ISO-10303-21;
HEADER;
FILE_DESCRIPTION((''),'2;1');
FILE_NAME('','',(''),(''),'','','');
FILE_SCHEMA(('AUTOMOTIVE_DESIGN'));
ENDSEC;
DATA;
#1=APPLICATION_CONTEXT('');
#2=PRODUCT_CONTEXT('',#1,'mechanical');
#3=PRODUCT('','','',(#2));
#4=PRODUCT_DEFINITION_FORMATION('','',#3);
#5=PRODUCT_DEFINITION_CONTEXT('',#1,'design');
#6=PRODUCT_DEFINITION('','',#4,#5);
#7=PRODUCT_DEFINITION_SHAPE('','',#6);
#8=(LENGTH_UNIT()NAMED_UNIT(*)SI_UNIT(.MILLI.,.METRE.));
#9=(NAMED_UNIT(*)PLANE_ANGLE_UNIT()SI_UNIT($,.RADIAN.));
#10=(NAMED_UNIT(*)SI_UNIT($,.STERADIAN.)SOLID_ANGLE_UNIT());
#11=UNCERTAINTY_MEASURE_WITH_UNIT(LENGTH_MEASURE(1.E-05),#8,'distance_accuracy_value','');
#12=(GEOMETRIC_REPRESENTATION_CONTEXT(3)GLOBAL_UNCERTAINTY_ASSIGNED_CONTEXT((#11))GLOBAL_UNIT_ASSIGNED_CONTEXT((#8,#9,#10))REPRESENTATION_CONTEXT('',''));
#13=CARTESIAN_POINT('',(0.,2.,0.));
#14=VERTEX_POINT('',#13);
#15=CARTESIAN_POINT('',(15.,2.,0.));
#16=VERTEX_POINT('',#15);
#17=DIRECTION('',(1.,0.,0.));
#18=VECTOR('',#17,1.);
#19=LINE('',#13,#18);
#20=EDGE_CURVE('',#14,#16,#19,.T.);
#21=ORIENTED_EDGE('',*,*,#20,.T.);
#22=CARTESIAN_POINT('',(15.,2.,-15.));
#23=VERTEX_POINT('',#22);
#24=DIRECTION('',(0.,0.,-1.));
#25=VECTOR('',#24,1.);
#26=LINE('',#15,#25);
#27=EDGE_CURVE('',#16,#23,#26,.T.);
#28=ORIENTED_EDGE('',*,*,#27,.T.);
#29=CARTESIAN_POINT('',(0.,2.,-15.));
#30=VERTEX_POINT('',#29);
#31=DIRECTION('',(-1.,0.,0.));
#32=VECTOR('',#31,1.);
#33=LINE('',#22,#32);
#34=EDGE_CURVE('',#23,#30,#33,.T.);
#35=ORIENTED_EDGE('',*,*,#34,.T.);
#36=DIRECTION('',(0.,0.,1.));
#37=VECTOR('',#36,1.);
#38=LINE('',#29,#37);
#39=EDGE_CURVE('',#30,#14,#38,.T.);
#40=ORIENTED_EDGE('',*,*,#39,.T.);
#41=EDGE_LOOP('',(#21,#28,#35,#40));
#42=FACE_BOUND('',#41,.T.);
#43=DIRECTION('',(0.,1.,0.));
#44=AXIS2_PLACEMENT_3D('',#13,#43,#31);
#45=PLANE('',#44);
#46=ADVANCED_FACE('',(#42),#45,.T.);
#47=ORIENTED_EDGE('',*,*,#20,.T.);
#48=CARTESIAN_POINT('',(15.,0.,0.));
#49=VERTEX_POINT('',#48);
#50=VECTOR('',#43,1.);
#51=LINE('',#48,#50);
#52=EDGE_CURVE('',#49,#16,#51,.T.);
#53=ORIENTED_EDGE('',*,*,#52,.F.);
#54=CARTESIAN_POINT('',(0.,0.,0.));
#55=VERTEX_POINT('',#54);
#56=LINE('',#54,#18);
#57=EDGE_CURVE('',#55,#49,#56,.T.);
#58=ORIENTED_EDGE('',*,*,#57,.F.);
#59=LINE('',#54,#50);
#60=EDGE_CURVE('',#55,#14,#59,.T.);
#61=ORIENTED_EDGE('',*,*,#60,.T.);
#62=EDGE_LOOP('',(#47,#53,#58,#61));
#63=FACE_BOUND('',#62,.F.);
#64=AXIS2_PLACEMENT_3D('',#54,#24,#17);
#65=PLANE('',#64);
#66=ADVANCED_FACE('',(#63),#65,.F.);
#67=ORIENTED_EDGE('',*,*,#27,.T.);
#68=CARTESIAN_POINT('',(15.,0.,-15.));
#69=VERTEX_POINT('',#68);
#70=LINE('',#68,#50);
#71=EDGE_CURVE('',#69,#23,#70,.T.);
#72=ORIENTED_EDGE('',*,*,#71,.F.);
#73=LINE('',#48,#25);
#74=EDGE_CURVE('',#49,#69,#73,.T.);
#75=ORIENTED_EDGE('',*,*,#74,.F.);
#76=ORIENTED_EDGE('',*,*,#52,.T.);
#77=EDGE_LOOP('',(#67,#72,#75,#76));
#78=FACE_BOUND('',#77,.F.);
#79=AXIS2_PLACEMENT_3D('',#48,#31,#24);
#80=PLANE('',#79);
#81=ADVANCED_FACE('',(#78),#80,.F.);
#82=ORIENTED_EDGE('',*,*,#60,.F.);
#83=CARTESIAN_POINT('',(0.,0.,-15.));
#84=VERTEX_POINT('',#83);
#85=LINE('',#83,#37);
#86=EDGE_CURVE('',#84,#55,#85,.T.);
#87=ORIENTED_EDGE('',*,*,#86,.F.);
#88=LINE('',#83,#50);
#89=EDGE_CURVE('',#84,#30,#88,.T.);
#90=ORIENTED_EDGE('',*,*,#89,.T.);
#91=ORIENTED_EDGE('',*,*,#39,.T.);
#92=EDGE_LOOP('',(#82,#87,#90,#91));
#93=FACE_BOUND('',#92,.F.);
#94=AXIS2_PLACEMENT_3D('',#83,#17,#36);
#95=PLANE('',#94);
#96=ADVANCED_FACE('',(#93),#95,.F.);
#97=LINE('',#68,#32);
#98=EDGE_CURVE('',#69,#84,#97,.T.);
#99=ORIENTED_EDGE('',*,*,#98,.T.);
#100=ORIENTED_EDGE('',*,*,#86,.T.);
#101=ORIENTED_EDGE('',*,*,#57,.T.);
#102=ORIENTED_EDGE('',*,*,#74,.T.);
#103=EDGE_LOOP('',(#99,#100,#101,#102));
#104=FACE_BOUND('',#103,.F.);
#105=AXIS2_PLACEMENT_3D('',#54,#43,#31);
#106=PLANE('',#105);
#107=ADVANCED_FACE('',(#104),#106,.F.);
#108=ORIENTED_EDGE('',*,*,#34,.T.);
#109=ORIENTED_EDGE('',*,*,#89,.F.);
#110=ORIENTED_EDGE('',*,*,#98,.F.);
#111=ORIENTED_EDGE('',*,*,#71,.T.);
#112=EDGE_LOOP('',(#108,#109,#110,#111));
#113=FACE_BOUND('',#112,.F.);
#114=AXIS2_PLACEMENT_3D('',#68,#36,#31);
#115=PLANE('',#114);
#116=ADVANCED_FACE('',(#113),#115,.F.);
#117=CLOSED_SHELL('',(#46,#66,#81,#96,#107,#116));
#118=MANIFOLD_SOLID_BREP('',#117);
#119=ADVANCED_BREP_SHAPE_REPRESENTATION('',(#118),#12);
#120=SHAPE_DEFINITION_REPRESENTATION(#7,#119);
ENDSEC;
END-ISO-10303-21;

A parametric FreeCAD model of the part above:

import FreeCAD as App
import Part
import Sketcher
from FreeCAD import Vector
Q = App.Units.Quantity


def add_polygon(sketch, points):
    """Adds a closed chain of lines whose ends are joined by coincident constraints."""
    first, n = sketch.GeometryCount, len(points)
    for a, b in zip(points, points[1:] + points[:1]):
        sketch.addGeometry(Part.LineSegment(App.Vector(*a, 0), App.Vector(*b, 0)), False)
    for i in range(n):
        sketch.addConstraint(Sketcher.Constraint("Coincident", first + i, 2, first + (i + 1) % n, 1))

doc = App.newDocument("Part")
body = doc.addObject("PartDesign::Body", "Body")

# Sketch on XZ plane
sketch1 = doc.addObject("Sketcher::SketchObject", "Sketch")
body.addObject(sketch1)
sketch1.AttachmentSupport = (doc.XZ_Plane, [""])
sketch1.MapMode = "FlatFace"
add_polygon(sketch1, [(0, -15), (0, 0), (15, 0), (15, -15)])  # lines 0-3
sketch1.addConstraint([
    Sketcher.Constraint("Vertical", 0),
    Sketcher.Constraint("Horizontal", 1),
    Sketcher.Constraint("Vertical", 2),
    Sketcher.Constraint("Horizontal", 3),
    Sketcher.Constraint("Coincident", 0, 2, -1, 1),
    Sketcher.Constraint("Equal", 3, 0),
    Sketcher.Constraint("DistanceX", 1, 1, 1, 2, Q("15 mm")),
])
pad1 = doc.addObject("PartDesign::Pad", "Pad")
body.addObject(pad1)
pad1.Profile = sketch1
pad1.Length = 2
pad1.Reversed = True

doc.recompute()
